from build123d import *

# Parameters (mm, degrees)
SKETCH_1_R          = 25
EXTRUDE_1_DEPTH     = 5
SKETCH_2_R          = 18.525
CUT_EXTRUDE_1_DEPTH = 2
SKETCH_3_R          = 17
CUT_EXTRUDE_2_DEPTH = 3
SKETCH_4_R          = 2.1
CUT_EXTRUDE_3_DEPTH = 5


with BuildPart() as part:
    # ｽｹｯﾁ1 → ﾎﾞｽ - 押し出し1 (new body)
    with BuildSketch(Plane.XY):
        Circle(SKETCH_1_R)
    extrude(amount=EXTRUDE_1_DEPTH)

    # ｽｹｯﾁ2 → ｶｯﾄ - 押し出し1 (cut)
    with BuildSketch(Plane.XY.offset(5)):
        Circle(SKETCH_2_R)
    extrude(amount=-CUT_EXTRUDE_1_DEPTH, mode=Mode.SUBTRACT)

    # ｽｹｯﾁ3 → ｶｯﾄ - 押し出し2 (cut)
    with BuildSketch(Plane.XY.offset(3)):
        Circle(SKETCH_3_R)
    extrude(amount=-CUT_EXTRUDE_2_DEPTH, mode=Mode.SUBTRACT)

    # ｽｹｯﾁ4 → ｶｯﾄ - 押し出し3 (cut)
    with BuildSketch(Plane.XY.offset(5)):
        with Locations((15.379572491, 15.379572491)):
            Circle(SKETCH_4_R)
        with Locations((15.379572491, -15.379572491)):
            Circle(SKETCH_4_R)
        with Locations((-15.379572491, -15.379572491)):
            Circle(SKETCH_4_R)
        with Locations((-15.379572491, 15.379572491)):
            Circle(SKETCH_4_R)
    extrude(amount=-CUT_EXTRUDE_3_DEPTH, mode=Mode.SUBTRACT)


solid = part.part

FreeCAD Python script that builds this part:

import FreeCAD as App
import Part
import Sketcher

V = App.Vector

doc = App.newDocument("Part")
body = doc.addObject("PartDesign::Body", "Body")

sketch1 = body.newObject("Sketcher::SketchObject", "Sketch")
sketch1.AttachmentSupport = (doc.getObject("XY_Plane"), [""])
sketch1.MapMode = "FlatFace"
sketch1.addGeometry(Part.Circle(V(0, 0, 0), V(0, 0, 1), 25), False)
sketch1.addConstraint([
    Sketcher.Constraint("Coincident", 0, 3, -1, 1),
    Sketcher.Constraint("Diameter", 0, 50.0),
])
pad1 = body.newObject("PartDesign::Pad", "Pad")
pad1.Profile = sketch1
pad1.Length = 5

sketch2 = body.newObject("Sketcher::SketchObject", "Sketch001")
sketch2.AttachmentSupport = (doc.getObject("XY_Plane"), [""])
sketch2.MapMode = "FlatFace"
sketch2.AttachmentOffset = App.Placement(V(0, 0, 5), App.Rotation())
sketch2.addGeometry(Part.Circle(V(0, 0, 0), V(0, 0, 1), 19), False)
sketch2.addConstraint([
    Sketcher.Constraint("Coincident", 0, 3, -1, 1),
    Sketcher.Constraint("Diameter", 0, 37.05),
])
pocket1 = body.newObject("PartDesign::Pocket", "Pocket")
pocket1.Profile = sketch2
pocket1.Length = 2

sketch3 = body.newObject("Sketcher::SketchObject", "Sketch002")
sketch3.AttachmentSupport = (doc.getObject("XY_Plane"), [""])
sketch3.MapMode = "FlatFace"
sketch3.AttachmentOffset = App.Placement(V(0, 0, 3), App.Rotation())
sketch3.addGeometry(Part.Circle(V(0, 0, 0), V(0, 0, 1), 17), False)
sketch3.addConstraint([
    Sketcher.Constraint("Coincident", 0, 3, -1, 1),
    Sketcher.Constraint("Diameter", 0, 34.0),
])
pocket2 = body.newObject("PartDesign::Pocket", "Pocket001")
pocket2.Profile = sketch3
pocket2.Length = 3

sketch4 = body.newObject("Sketcher::SketchObject", "Sketch003")
sketch4.AttachmentSupport = (doc.getObject("XY_Plane"), [""])
sketch4.MapMode = "FlatFace"
sketch4.AttachmentOffset = App.Placement(V(0, 0, 5), App.Rotation())
sketch4.addGeometry([
    Part.Circle(V(15.4, 15.4, 0), V(0, 0, 1), 2.1),
    Part.Circle(V(15.4, -15.4, 0), V(0, 0, 1), 2.1),
    Part.Circle(V(-15.4, -15.4, 0), V(0, 0, 1), 2.1),
    Part.Circle(V(-15.4, 15.4, 0), V(0, 0, 1), 2.1),
], False)
sketch4.addConstraint([
    Sketcher.Constraint("Equal", 0, 1),
    Sketcher.Constraint("Equal", 1, 2),
    Sketcher.Constraint("Equal", 2, 3),
    Sketcher.Constraint("Symmetric", 0, 3, 2, 3, -1, 1),
    Sketcher.Constraint("Symmetric", 1, 3, 3, 3, -1, 1),
    Sketcher.Constraint("Symmetric", 1, 3, 2, 3, -2),
    Sketcher.Constraint("Diameter", 0, 4.2),
    Sketcher.Constraint("DistanceX", -1, 1, 0, 3, 15.379572),
    Sketcher.Constraint("DistanceY", -1, 1, 0, 3, 15.379572),
])
pocket3 = body.newObject("PartDesign::Pocket", "Pocket002")
pocket3.Profile = sketch4
pocket3.Length = 5

doc.recompute()
